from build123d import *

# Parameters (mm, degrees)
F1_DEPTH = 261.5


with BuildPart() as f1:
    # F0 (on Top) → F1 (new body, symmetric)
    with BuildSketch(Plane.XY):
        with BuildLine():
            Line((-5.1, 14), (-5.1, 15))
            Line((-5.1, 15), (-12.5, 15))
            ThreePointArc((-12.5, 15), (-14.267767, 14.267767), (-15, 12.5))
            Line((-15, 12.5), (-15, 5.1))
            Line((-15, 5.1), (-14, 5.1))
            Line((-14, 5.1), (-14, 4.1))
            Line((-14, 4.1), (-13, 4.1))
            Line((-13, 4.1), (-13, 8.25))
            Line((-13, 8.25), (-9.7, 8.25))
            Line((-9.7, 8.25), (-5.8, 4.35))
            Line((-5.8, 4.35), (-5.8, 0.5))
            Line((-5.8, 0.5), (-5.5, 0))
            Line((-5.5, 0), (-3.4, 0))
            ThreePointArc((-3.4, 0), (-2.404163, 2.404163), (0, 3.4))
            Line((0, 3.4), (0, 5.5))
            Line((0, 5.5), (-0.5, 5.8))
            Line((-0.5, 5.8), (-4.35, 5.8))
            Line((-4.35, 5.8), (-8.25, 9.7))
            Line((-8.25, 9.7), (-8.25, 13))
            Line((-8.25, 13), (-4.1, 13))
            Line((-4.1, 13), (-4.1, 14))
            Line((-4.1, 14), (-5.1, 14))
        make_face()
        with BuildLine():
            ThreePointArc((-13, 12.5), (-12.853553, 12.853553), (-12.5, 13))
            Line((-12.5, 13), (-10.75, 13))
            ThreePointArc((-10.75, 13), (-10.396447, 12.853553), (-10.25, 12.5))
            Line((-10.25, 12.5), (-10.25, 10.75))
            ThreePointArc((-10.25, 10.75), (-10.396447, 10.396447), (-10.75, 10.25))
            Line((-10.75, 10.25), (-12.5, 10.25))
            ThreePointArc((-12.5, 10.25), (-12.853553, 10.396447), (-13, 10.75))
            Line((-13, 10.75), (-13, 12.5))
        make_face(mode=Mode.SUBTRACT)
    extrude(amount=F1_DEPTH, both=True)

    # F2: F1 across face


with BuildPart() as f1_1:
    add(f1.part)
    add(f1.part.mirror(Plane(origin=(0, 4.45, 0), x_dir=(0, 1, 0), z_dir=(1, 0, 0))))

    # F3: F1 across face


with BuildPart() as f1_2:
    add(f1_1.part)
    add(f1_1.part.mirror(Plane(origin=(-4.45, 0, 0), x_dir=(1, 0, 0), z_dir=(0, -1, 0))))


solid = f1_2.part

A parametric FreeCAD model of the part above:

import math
import FreeCAD as App
import Part
import Sketcher
Q = App.Units.Quantity

doc = App.newDocument("Part")
body = doc.addObject("PartDesign::Body", "Body")

sketch1 = doc.addObject("Sketcher::SketchObject", "Sketch")
body.addObject(sketch1)
sketch1.AttachmentSupport = (doc.XY_Plane, [""])
sketch1.MapMode = "FlatFace"
sketch1.addGeometry(Part.LineSegment(App.Vector(-5.1, 14, 0), App.Vector(-5.1, 15, 0)), False)
sketch1.addGeometry(Part.LineSegment(App.Vector(-5.1, 15, 0), App.Vector(-12.5, 15, 0)), False)
sketch1.addGeometry(Part.ArcOfCircle(Part.Circle(App.Vector(-12.5, 12.5, 0), App.Vector(0, 0, 1), 2.5), math.radians(90), math.radians(180)), False)
sketch1.addGeometry(Part.LineSegment(App.Vector(-15, 12.5, 0), App.Vector(-15, 5.1, 0)), False)
sketch1.addGeometry(Part.LineSegment(App.Vector(-15, 5.1, 0), App.Vector(-14, 5.1, 0)), False)
sketch1.addGeometry(Part.LineSegment(App.Vector(-14, 5.1, 0), App.Vector(-14, 4.1, 0)), False)
sketch1.addGeometry(Part.LineSegment(App.Vector(-14, 4.1, 0), App.Vector(-13, 4.1, 0)), False)
sketch1.addGeometry(Part.LineSegment(App.Vector(-13, 4.1, 0), App.Vector(-13, 8.2, 0)), False)
sketch1.addGeometry(Part.LineSegment(App.Vector(-13, 8.2, 0), App.Vector(-9.7, 8.2, 0)), False)
sketch1.addGeometry(Part.LineSegment(App.Vector(-9.7, 8.2, 0), App.Vector(-5.8, 4.3, 0)), False)
sketch1.addGeometry(Part.LineSegment(App.Vector(-5.8, 4.3, 0), App.Vector(-5.8, 0.5, 0)), False)
sketch1.addGeometry(Part.LineSegment(App.Vector(-5.8, 0.5, 0), App.Vector(-5.5, 0, 0)), False)
sketch1.addGeometry(Part.LineSegment(App.Vector(-5.5, 0, 0), App.Vector(-3.4, 0, 0)), False)
sketch1.addGeometry(Part.ArcOfCircle(Part.Circle(App.Vector(0, 0, 0), App.Vector(0, 0, 1), 3.4), math.radians(90), math.radians(180)), False)
sketch1.addGeometry(Part.LineSegment(App.Vector(0, 3.4, 0), App.Vector(0, 5.5, 0)), False)
sketch1.addGeometry(Part.LineSegment(App.Vector(0, 5.5, 0), App.Vector(-0.5, 5.8, 0)), False)
sketch1.addGeometry(Part.LineSegment(App.Vector(-0.5, 5.8, 0), App.Vector(-4.3, 5.8, 0)), False)
sketch1.addGeometry(Part.LineSegment(App.Vector(-4.3, 5.8, 0), App.Vector(-8.2, 9.7, 0)), False)
sketch1.addGeometry(Part.LineSegment(App.Vector(-8.2, 9.7, 0), App.Vector(-8.2, 13, 0)), False)
sketch1.addGeometry(Part.LineSegment(App.Vector(-8.2, 13, 0), App.Vector(-4.1, 13, 0)), False)
sketch1.addGeometry(Part.LineSegment(App.Vector(-4.1, 13, 0), App.Vector(-4.1, 14, 0)), False)
sketch1.addGeometry(Part.LineSegment(App.Vector(-4.1, 14, 0), App.Vector(-5.1, 14, 0)), False)
sketch1.addGeometry(Part.LineSegment(App.Vector(-13, 10.8, 0), App.Vector(-13, 12.5, 0)), False)
sketch1.addGeometry(Part.ArcOfCircle(Part.Circle(App.Vector(-12.5, 12.5, 0), App.Vector(0, 0, 1), 0.5), math.radians(90), math.radians(180)), False)
sketch1.addGeometry(Part.LineSegment(App.Vector(-12.5, 13, 0), App.Vector(-10.8, 13, 0)), False)
sketch1.addGeometry(Part.ArcOfCircle(Part.Circle(App.Vector(-10.8, 12.5, 0), App.Vector(0, 0, 1), 0.5), math.radians(0), math.radians(90)), False)
sketch1.addGeometry(Part.LineSegment(App.Vector(-10.2, 12.5, 0), App.Vector(-10.2, 10.8, 0)), False)
sketch1.addGeometry(Part.ArcOfCircle(Part.Circle(App.Vector(-10.8, 10.8, 0), App.Vector(0, 0, 1), 0.5), math.radians(-90), math.radians(0)), False)
sketch1.addGeometry(Part.LineSegment(App.Vector(-10.8, 10.2, 0), App.Vector(-12.5, 10.2, 0)), False)
sketch1.addGeometry(Part.ArcOfCircle(Part.Circle(App.Vector(-12.5, 10.8, 0), App.Vector(0, 0, 1), 0.5), math.radians(-180), math.radians(-90)), False)
sketch1.addConstraint(Sketcher.Constraint("Coincident", 0, 2, 1, 1))
sketch1.addConstraint(Sketcher.Constraint("Tangent", 1, 2, 2, 1))
sketch1.addConstraint(Sketcher.Constraint("Tangent", 2, 2, 3, 1))
sketch1.addConstraint(Sketcher.Constraint("Coincident", 3, 2, 4, 1))
sketch1.addConstraint(Sketcher.Constraint("Coincident", 4, 2, 5, 1))
sketch1.addConstraint(Sketcher.Constraint("Coincident", 5, 2, 6, 1))
sketch1.addConstraint(Sketcher.Constraint("Coincident", 6, 2, 7, 1))
sketch1.addConstraint(Sketcher.Constraint("Coincident", 7, 2, 8, 1))
sketch1.addConstraint(Sketcher.Constraint("Coincident", 8, 2, 9, 1))
sketch1.addConstraint(Sketcher.Constraint("Coincident", 9, 2, 10, 1))
sketch1.addConstraint(Sketcher.Constraint("Coincident", 10, 2, 11, 1))
sketch1.addConstraint(Sketcher.Constraint("Coincident", 11, 2, 12, 1))
sketch1.addConstraint(Sketcher.Constraint("Coincident", 12, 2, 13, 2))
sketch1.addConstraint(Sketcher.Constraint("Coincident", 13, 1, 14, 1))
sketch1.addConstraint(Sketcher.Constraint("Coincident", 14, 2, 15, 1))
sketch1.addConstraint(Sketcher.Constraint("Coincident", 15, 2, 16, 1))
sketch1.addConstraint(Sketcher.Constraint("Coincident", 16, 2, 17, 1))
sketch1.addConstraint(Sketcher.Constraint("Coincident", 17, 2, 18, 1))
sketch1.addConstraint(Sketcher.Constraint("Coincident", 18, 2, 19, 1))
sketch1.addConstraint(Sketcher.Constraint("Coincident", 19, 2, 20, 1))
sketch1.addConstraint(Sketcher.Constraint("Coincident", 20, 2, 21, 1))
sketch1.addConstraint(Sketcher.Constraint("Coincident", 21, 2, 0, 1))
sketch1.addConstraint(Sketcher.Constraint("Coincident", 22, 2, 23, 2))
sketch1.addConstraint(Sketcher.Constraint("Coincident", 23, 1, 24, 1))
sketch1.addConstraint(Sketcher.Constraint("Coincident", 24, 2, 25, 2))
sketch1.addConstraint(Sketcher.Constraint("Coincident", 25, 1, 26, 1))
sketch1.addConstraint(Sketcher.Constraint("Coincident", 26, 2, 27, 2))
sketch1.addConstraint(Sketcher.Constraint("Coincident", 27, 1, 28, 1))
sketch1.addConstraint(Sketcher.Constraint("Coincident", 28, 2, 29, 2))
sketch1.addConstraint(Sketcher.Constraint("Coincident", 29, 1, 22, 1))
sketch1.addConstraint(Sketcher.Constraint("Vertical", 0))
sketch1.addConstraint(Sketcher.Constraint("Horizontal", 1))
sketch1.addConstraint(Sketcher.Constraint("Vertical", 3))
sketch1.addConstraint(Sketcher.Constraint("Horizontal", 4))
sketch1.addConstraint(Sketcher.Constraint("Vertical", 5))
sketch1.addConstraint(Sketcher.Constraint("Horizontal", 6))
sketch1.addConstraint(Sketcher.Constraint("Vertical", 7))
sketch1.addConstraint(Sketcher.Constraint("Horizontal", 8))
sketch1.addConstraint(Sketcher.Constraint("Vertical", 10))
sketch1.addConstraint(Sketcher.Constraint("Horizontal", 12))
sketch1.addConstraint(Sketcher.Constraint("Vertical", 14))
sketch1.addConstraint(Sketcher.Constraint("Horizontal", 16))
sketch1.addConstraint(Sketcher.Constraint("Vertical", 18))
sketch1.addConstraint(Sketcher.Constraint("Horizontal", 19))
sketch1.addConstraint(Sketcher.Constraint("Vertical", 20))
sketch1.addConstraint(Sketcher.Constraint("Horizontal", 21))
sketch1.addConstraint(Sketcher.Constraint("Vertical", 22))
sketch1.addConstraint(Sketcher.Constraint("Horizontal", 24))
sketch1.addConstraint(Sketcher.Constraint("Vertical", 26))
sketch1.addConstraint(Sketcher.Constraint("Horizontal", 28))
sketch1.addConstraint(Sketcher.Constraint("Coincident", 13, 3, -1, 1))
sketch1.addConstraint(Sketcher.Constraint("Coincident", 23, 3, 2, 3))
sketch1.addConstraint(Sketcher.Constraint("Equal", 23, 25))
sketch1.addConstraint(Sketcher.Constraint("Equal", 25, 27))
sketch1.addConstraint(Sketcher.Constraint("Equal", 27, 29))
sketch1.addConstraint(Sketcher.Constraint("PointOnObject", 11, 2, -1))
sketch1.addConstraint(Sketcher.Constraint("PointOnObject", 13, 1, -2))
sketch1.addConstraint(Sketcher.Constraint("Parallel", 9, 17))
sketch1.addConstraint(Sketcher.Constraint("Horizontal", 2, 2, 22, 2))
sketch1.addConstraint(Sketcher.Constraint("Horizontal", 19, 2, 23, 1))
sketch1.addConstraint(Sketcher.Constraint("Horizontal", 22, 2, 25, 1))
sketch1.addConstraint(Sketcher.Constraint("Horizontal", 29, 3, 26, 2))
sketch1.addConstraint(Sketcher.Constraint("Horizontal", 26, 2, 29, 1))
sketch1.addConstraint(Sketcher.Constraint("Vertical", 7, 2, 22, 2))
sketch1.addConstraint(Sketcher.Constraint("Vertical", 1, 2, 23, 1))
sketch1.addConstraint(Sketcher.Constraint("Vertical", 27, 3, 24, 2))
sketch1.addConstraint(Sketcher.Constraint("Vertical", 24, 2, 27, 1))
sketch1.addConstraint(Sketcher.Constraint("Vertical", 23, 1, 28, 2))
sketch1.addConstraint(Sketcher.Constraint("Equal", 4, 6))
sketch1.addConstraint(Sketcher.Constraint("Equal", 6, 21))
sketch1.addConstraint(Sketcher.Constraint("Equal", 21, 0))
sketch1.addConstraint(Sketcher.Constraint("Equal", 1, 3))
sketch1.addConstraint(Sketcher.Constraint("Equal", 0, 5))
sketch1.addConstraint(Sketcher.Constraint("Equal", 19, 7))
sketch1.addConstraint(Sketcher.Constraint("Equal", 16, 10))
sketch1.addConstraint(Sketcher.Constraint("Equal", 12, 14))
sketch1.addConstraint(Sketcher.Constraint("Equal", 8, 18))
sketch1.addConstraint(Sketcher.Constraint("Equal", 28, 22))
sketch1.addConstraint(Sketcher.Constraint("Equal", 11, 15))
sketch1.addConstraint(Sketcher.Constraint("Equal", 9, 17))
sketch1.addConstraint(Sketcher.Constraint("Radius", 2, Q("2.5 mm")))
sketch1.addConstraint(Sketcher.Constraint("Radius", 13, Q("3.4 mm")))
sketch1.addConstraint(Sketcher.Constraint("Radius", 23, Q("0.500001 mm")))
sketch1.addConstraint(Sketcher.Constraint("Angle", 9, Q("-45 deg")))
sketch1.addConstraint(Sketcher.Constraint("DistanceX", 1, 2, 1, 1, Q("7.4 mm")))
sketch1.addConstraint(Sketcher.Constraint("DistanceX", 8, 1, 8, 2, Q("3.3 mm")))
sketch1.addConstraint(Sketcher.Constraint("DistanceX", 12, 1, 12, 2, Q("2.1 mm")))
sketch1.addConstraint(Sketcher.Constraint("DistanceY", -1, 1, 0, 2, Q("15 mm")))
sketch1.addConstraint(Sketcher.Constraint("DistanceY", 10, 2, 14, 2, Q("5 mm")))
sketch1.addConstraint(Sketcher.Constraint("DistanceX", 25, 1, 18, 2, Q("2 mm")))
sketch1.addConstraint(Sketcher.Constraint("DistanceX", 16, 2, 16, 1, Q("3.85 mm")))
sketch1.addConstraint(Sketcher.Constraint("DistanceX", 19, 1, 19, 2, Q("4.15 mm")))
pad1 = doc.addObject("PartDesign::Pad", "Pad")
body.addObject(pad1)
pad1.Profile = sketch1
pad1.Length = 523
pad1.Midplane = True
body2 = doc.addObject("PartDesign::Body", "Body001")
doc.recompute()

body2.BaseFeature = body
doc.recompute()

mirroring = doc.addObject("Part::Mirroring", "Mirroring")
mirroring.Source = body
mirroring.Base = App.Vector(0, 4.45, 0)
mirroring.Normal = App.Vector(1, 0, 0)
body3 = doc.addObject("PartDesign::Body", "Body002")
body3.BaseFeature = mirroring
boolean = doc.addObject("PartDesign::Boolean", "Boolean")
body2.addObject(boolean)
boolean.Type = "Fuse"
boolean.addObjects([body3])
doc.recompute()
body4 = doc.addObject("PartDesign::Body", "Body003")
doc.recompute()

body4.BaseFeature = body2
doc.recompute()

mirroring2 = doc.addObject("Part::Mirroring", "Mirroring001")
mirroring2.Source = body2
mirroring2.Base = App.Vector(-4.45, 0, 0)
mirroring2.Normal = App.Vector(0, -1, 0)
body5 = doc.addObject("PartDesign::Body", "Body004")
body5.BaseFeature = mirroring2
boolean2 = doc.addObject("PartDesign::Boolean", "Boolean001")
body4.addObject(boolean2)
boolean2.Type = "Fuse"
boolean2.addObjects([body5])
doc.recompute()
mirroring.Visibility = False
mirroring2.Visibility = False

doc.recompute()
